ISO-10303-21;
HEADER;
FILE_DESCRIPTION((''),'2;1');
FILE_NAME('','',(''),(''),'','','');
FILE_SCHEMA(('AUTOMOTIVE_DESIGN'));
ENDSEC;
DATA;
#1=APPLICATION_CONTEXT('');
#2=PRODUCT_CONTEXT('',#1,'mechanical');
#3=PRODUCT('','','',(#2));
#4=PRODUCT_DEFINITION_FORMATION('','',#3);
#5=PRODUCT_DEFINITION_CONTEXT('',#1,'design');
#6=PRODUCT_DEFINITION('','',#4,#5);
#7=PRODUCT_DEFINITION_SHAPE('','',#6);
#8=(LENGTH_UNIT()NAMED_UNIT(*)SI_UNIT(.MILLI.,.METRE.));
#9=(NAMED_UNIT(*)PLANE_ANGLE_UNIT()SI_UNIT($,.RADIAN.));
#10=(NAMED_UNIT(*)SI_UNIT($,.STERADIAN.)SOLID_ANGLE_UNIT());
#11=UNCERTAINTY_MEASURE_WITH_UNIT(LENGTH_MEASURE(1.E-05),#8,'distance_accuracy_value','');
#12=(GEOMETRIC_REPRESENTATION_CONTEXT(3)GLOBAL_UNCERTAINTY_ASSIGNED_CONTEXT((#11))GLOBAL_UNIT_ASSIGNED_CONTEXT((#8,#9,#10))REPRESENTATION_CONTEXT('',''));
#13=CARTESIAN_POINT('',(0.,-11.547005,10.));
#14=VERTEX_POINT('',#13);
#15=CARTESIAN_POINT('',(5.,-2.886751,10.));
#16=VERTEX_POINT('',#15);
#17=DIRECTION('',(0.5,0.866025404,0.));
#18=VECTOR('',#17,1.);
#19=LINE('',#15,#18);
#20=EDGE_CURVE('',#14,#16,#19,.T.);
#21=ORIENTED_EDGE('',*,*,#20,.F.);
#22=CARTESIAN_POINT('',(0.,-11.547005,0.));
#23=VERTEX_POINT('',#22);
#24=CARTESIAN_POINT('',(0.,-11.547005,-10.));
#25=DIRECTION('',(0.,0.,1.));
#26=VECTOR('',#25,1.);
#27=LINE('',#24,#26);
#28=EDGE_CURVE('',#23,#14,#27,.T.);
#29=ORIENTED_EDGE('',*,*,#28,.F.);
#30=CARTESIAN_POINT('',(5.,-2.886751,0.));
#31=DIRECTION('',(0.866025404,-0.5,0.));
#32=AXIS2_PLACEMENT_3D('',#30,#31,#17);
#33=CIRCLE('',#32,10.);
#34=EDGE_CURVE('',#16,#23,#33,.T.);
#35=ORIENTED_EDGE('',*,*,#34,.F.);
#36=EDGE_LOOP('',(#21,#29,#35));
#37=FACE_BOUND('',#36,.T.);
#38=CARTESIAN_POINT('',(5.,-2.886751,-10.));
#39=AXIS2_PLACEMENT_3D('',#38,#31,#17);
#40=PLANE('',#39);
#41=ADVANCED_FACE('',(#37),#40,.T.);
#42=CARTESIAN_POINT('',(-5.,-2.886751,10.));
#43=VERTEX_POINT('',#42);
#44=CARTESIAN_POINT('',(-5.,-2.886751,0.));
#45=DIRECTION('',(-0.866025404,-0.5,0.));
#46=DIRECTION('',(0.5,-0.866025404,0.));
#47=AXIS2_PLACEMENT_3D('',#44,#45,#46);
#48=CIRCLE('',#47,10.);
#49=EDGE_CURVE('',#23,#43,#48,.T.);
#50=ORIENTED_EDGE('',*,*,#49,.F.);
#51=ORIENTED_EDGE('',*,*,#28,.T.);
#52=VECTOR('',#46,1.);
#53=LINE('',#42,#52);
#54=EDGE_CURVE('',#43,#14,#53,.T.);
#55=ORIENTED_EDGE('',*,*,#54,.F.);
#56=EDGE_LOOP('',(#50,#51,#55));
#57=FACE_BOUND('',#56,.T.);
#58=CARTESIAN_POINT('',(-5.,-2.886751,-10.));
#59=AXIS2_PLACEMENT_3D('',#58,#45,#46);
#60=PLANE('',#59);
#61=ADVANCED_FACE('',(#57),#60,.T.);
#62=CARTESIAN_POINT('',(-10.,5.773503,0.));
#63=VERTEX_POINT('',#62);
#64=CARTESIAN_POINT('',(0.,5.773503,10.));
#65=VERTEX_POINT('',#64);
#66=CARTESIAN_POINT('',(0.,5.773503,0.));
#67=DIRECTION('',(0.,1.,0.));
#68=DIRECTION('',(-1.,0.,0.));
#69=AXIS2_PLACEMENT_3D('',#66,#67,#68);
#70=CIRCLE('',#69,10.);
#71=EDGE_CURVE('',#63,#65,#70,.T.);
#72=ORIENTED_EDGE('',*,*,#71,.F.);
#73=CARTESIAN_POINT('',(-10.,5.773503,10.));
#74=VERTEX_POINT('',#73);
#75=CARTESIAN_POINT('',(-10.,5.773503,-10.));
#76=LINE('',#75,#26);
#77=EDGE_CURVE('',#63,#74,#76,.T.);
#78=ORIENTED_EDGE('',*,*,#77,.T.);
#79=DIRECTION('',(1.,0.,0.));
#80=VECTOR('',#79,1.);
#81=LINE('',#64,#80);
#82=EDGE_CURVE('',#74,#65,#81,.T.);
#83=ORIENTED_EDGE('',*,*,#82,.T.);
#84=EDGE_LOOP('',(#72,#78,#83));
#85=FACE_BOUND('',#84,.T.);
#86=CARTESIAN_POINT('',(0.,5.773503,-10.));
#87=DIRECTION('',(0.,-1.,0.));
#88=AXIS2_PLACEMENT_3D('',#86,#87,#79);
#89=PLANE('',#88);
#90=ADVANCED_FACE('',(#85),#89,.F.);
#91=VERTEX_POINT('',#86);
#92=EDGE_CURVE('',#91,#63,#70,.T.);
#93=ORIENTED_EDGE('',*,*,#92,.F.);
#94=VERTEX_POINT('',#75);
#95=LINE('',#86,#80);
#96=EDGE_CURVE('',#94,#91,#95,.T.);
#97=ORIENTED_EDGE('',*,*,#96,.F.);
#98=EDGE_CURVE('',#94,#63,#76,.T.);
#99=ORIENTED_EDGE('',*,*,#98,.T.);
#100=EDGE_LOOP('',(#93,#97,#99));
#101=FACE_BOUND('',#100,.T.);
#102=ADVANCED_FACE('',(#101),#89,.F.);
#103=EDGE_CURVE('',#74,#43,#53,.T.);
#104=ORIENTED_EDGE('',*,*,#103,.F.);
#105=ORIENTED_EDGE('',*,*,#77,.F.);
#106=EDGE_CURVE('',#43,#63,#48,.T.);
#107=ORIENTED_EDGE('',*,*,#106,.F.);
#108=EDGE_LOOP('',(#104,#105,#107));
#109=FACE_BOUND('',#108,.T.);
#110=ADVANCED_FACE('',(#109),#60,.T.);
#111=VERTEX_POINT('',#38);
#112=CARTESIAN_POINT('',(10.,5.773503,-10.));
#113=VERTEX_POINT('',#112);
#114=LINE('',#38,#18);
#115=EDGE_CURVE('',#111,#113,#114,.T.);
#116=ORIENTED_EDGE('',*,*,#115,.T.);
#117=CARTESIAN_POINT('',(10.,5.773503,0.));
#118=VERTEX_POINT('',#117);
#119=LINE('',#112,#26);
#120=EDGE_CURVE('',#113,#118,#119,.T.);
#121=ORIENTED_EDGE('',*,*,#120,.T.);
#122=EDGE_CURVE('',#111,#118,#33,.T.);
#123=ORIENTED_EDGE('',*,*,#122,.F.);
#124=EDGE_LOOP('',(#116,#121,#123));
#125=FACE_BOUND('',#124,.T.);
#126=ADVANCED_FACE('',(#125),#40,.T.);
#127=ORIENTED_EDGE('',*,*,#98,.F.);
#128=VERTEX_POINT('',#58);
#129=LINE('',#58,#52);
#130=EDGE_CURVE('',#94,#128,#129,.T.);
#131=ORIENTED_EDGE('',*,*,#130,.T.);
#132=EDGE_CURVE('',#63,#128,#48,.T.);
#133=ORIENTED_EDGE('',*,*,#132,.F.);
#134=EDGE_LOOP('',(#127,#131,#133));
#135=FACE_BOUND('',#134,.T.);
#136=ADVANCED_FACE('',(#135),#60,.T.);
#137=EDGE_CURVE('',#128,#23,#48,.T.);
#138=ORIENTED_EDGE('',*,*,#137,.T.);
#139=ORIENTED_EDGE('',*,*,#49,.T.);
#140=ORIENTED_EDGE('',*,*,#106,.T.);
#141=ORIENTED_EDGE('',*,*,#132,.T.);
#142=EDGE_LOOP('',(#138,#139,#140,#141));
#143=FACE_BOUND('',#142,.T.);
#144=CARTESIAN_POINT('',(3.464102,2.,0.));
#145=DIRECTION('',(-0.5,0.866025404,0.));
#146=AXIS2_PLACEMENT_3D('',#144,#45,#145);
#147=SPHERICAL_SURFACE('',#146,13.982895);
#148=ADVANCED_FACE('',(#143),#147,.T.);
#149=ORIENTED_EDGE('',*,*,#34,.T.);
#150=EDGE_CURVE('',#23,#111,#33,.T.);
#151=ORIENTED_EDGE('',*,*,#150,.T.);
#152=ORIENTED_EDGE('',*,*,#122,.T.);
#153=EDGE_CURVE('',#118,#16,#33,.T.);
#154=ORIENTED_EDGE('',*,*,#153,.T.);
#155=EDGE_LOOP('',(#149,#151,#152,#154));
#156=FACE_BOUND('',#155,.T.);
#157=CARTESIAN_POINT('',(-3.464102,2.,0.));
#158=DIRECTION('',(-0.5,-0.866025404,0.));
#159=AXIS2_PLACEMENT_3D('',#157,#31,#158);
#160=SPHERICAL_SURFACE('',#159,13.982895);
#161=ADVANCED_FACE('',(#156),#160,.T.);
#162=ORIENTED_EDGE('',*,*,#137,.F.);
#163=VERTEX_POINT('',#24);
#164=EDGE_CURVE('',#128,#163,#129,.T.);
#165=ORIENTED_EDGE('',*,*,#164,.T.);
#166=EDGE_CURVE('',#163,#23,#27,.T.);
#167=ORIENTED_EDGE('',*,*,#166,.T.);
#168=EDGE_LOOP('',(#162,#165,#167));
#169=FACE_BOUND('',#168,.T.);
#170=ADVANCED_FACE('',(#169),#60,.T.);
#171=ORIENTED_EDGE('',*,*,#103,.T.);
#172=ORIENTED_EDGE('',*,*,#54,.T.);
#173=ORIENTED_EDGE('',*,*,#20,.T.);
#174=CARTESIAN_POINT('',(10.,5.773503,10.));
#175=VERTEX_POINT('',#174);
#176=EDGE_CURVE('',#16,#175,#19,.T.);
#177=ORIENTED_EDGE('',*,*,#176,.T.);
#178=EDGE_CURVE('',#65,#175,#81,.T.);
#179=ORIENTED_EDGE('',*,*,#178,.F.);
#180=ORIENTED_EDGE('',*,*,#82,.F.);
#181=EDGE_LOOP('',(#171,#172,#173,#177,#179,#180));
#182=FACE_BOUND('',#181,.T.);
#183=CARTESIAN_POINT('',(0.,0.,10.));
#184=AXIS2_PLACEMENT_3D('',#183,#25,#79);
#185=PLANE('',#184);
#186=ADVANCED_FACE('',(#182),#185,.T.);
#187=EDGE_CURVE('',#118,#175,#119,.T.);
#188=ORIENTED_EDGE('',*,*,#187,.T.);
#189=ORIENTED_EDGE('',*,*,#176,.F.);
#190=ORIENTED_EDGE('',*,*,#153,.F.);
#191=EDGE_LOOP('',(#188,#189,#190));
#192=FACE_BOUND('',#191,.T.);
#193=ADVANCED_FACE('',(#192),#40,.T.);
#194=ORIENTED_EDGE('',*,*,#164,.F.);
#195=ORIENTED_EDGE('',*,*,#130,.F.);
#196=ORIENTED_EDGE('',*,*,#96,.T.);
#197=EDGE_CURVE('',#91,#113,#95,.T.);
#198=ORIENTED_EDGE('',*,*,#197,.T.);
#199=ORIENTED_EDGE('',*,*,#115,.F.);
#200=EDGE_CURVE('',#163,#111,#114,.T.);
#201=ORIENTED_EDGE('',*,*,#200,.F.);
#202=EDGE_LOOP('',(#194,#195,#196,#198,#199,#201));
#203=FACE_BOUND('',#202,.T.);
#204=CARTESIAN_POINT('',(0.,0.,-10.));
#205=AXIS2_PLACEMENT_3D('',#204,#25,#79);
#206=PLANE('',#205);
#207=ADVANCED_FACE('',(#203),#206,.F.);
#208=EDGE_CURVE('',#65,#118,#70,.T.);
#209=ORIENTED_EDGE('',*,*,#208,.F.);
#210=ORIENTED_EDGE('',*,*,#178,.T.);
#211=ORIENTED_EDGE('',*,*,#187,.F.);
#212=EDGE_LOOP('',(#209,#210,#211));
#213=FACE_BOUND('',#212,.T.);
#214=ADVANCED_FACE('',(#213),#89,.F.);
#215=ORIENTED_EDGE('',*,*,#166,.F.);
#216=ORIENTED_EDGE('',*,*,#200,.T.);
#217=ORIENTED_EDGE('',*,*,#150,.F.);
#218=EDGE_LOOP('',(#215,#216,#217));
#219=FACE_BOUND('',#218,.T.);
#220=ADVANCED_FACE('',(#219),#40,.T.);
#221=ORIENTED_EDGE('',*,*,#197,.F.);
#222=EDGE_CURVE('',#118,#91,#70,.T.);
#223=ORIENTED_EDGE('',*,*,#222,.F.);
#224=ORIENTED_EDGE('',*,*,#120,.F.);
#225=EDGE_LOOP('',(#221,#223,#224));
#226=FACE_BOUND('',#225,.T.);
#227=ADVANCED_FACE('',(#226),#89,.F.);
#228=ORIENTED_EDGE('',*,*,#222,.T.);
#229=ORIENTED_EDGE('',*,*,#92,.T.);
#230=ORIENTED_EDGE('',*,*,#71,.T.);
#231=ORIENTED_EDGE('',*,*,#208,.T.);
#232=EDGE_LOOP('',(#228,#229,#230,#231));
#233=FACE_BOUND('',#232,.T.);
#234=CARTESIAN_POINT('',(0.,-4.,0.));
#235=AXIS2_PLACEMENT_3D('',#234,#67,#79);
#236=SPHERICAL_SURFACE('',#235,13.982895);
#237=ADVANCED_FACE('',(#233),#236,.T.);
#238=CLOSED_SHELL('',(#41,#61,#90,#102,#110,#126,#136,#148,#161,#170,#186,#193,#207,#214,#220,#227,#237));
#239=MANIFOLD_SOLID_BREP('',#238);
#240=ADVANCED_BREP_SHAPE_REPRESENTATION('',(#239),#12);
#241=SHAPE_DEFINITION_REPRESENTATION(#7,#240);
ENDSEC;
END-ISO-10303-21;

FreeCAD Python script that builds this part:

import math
import FreeCAD as App
import Part
import Sketcher

V = App.Vector
Q = App.Units.Quantity


def add_polygon(sketch, points):
    """Adds a closed chain of lines whose ends are joined by coincident constraints."""
    first, n = sketch.GeometryCount, len(points)
    for a, b in zip(points, points[1:] + points[:1]):
        sketch.addGeometry(Part.LineSegment(App.Vector(*a, 0), App.Vector(*b, 0)), False)
    for i in range(n):
        sketch.addConstraint(Sketcher.Constraint("Coincident", first + i, 2, first + (i + 1) % n, 1))

doc = App.newDocument("Part")
body = doc.addObject("PartDesign::Body", "Body")

sketch1 = body.newObject("Sketcher::SketchObject", "Sketch")
sketch1.AttachmentSupport = (doc.getObject("XY_Plane"), [""])
sketch1.MapMode = "FlatFace"
add_polygon(sketch1, [(10, 6), (-10, 6), (0, -12)])
sketch1.addConstraint([
    Sketcher.Constraint("Horizontal", 0),
    Sketcher.Constraint("PointOnObject", 1, 2, -2),
    Sketcher.Constraint("Equal", 1, 2),
    Sketcher.Constraint("DistanceX", 0, 2, 0, 1, 20.0),
    Sketcher.Constraint("Angle", 1, Q("-60 deg")),
    Sketcher.Constraint("DistanceY", -1, 1, 0, 2, 5.773503),
])
pad1 = body.newObject("PartDesign::Pad", "Pad")
pad1.Profile = sketch1
pad1.Type = "TwoLengths"
pad1.Length = 10
pad1.Length2 = 10

sketch2 = body.newObject("Sketcher::SketchObject", "Sketch001")
sketch2.AttachmentSupport = (doc.getObject("XY_Plane"), [""])
sketch2.MapMode = "FlatFace"
sketch2.addGeometry([
    Part.LineSegment(V(0, 10, 0), V(0, 5.8, 0)),
    Part.LineSegment(V(0, 5.8, 0), V(10, 5.8, 0)),
    Part.ArcOfCircle(Part.Circle(V(0, -4, 0), V(0, 0, 1), 14), math.radians(44), math.radians(90)),
], False)
sketch2.addConstraint([
    Sketcher.Constraint("Coincident", 0, 2, 1, 1),
    Sketcher.Constraint("Coincident", 1, 2, 2, 1),
    Sketcher.Constraint("Coincident", 2, 2, 0, 1),
    Sketcher.Constraint("Vertical", 0),
    Sketcher.Constraint("Horizontal", 1),
    Sketcher.Constraint("PointOnObject", 2, 3, -2),
    Sketcher.Constraint("PointOnObject", 0, 2, -2),
    Sketcher.Constraint("DistanceX", 1, 1, 1, 2, 10.0),
    Sketcher.Constraint("DistanceY", 2, 3, -1, 1, 4.0),
    Sketcher.Constraint("Radius", 2, 13.982895),
])
revolution = body.newObject("PartDesign::Revolution", "Revolution")
revolution.Profile = sketch2
revolution.ReferenceAxis = (sketch2, ["V_Axis"])
revolution.Angle = 360
doc.recompute()

polarpattern = body.newObject("PartDesign::PolarPattern", "PolarPattern")
polarpattern.Originals = [revolution]
polarpattern.Axis = (doc.getObject("Z_Axis"), [""])
polarpattern.Angle = 360
polarpattern.Occurrences = 3
body.Tip = polarpattern

doc.recompute()
